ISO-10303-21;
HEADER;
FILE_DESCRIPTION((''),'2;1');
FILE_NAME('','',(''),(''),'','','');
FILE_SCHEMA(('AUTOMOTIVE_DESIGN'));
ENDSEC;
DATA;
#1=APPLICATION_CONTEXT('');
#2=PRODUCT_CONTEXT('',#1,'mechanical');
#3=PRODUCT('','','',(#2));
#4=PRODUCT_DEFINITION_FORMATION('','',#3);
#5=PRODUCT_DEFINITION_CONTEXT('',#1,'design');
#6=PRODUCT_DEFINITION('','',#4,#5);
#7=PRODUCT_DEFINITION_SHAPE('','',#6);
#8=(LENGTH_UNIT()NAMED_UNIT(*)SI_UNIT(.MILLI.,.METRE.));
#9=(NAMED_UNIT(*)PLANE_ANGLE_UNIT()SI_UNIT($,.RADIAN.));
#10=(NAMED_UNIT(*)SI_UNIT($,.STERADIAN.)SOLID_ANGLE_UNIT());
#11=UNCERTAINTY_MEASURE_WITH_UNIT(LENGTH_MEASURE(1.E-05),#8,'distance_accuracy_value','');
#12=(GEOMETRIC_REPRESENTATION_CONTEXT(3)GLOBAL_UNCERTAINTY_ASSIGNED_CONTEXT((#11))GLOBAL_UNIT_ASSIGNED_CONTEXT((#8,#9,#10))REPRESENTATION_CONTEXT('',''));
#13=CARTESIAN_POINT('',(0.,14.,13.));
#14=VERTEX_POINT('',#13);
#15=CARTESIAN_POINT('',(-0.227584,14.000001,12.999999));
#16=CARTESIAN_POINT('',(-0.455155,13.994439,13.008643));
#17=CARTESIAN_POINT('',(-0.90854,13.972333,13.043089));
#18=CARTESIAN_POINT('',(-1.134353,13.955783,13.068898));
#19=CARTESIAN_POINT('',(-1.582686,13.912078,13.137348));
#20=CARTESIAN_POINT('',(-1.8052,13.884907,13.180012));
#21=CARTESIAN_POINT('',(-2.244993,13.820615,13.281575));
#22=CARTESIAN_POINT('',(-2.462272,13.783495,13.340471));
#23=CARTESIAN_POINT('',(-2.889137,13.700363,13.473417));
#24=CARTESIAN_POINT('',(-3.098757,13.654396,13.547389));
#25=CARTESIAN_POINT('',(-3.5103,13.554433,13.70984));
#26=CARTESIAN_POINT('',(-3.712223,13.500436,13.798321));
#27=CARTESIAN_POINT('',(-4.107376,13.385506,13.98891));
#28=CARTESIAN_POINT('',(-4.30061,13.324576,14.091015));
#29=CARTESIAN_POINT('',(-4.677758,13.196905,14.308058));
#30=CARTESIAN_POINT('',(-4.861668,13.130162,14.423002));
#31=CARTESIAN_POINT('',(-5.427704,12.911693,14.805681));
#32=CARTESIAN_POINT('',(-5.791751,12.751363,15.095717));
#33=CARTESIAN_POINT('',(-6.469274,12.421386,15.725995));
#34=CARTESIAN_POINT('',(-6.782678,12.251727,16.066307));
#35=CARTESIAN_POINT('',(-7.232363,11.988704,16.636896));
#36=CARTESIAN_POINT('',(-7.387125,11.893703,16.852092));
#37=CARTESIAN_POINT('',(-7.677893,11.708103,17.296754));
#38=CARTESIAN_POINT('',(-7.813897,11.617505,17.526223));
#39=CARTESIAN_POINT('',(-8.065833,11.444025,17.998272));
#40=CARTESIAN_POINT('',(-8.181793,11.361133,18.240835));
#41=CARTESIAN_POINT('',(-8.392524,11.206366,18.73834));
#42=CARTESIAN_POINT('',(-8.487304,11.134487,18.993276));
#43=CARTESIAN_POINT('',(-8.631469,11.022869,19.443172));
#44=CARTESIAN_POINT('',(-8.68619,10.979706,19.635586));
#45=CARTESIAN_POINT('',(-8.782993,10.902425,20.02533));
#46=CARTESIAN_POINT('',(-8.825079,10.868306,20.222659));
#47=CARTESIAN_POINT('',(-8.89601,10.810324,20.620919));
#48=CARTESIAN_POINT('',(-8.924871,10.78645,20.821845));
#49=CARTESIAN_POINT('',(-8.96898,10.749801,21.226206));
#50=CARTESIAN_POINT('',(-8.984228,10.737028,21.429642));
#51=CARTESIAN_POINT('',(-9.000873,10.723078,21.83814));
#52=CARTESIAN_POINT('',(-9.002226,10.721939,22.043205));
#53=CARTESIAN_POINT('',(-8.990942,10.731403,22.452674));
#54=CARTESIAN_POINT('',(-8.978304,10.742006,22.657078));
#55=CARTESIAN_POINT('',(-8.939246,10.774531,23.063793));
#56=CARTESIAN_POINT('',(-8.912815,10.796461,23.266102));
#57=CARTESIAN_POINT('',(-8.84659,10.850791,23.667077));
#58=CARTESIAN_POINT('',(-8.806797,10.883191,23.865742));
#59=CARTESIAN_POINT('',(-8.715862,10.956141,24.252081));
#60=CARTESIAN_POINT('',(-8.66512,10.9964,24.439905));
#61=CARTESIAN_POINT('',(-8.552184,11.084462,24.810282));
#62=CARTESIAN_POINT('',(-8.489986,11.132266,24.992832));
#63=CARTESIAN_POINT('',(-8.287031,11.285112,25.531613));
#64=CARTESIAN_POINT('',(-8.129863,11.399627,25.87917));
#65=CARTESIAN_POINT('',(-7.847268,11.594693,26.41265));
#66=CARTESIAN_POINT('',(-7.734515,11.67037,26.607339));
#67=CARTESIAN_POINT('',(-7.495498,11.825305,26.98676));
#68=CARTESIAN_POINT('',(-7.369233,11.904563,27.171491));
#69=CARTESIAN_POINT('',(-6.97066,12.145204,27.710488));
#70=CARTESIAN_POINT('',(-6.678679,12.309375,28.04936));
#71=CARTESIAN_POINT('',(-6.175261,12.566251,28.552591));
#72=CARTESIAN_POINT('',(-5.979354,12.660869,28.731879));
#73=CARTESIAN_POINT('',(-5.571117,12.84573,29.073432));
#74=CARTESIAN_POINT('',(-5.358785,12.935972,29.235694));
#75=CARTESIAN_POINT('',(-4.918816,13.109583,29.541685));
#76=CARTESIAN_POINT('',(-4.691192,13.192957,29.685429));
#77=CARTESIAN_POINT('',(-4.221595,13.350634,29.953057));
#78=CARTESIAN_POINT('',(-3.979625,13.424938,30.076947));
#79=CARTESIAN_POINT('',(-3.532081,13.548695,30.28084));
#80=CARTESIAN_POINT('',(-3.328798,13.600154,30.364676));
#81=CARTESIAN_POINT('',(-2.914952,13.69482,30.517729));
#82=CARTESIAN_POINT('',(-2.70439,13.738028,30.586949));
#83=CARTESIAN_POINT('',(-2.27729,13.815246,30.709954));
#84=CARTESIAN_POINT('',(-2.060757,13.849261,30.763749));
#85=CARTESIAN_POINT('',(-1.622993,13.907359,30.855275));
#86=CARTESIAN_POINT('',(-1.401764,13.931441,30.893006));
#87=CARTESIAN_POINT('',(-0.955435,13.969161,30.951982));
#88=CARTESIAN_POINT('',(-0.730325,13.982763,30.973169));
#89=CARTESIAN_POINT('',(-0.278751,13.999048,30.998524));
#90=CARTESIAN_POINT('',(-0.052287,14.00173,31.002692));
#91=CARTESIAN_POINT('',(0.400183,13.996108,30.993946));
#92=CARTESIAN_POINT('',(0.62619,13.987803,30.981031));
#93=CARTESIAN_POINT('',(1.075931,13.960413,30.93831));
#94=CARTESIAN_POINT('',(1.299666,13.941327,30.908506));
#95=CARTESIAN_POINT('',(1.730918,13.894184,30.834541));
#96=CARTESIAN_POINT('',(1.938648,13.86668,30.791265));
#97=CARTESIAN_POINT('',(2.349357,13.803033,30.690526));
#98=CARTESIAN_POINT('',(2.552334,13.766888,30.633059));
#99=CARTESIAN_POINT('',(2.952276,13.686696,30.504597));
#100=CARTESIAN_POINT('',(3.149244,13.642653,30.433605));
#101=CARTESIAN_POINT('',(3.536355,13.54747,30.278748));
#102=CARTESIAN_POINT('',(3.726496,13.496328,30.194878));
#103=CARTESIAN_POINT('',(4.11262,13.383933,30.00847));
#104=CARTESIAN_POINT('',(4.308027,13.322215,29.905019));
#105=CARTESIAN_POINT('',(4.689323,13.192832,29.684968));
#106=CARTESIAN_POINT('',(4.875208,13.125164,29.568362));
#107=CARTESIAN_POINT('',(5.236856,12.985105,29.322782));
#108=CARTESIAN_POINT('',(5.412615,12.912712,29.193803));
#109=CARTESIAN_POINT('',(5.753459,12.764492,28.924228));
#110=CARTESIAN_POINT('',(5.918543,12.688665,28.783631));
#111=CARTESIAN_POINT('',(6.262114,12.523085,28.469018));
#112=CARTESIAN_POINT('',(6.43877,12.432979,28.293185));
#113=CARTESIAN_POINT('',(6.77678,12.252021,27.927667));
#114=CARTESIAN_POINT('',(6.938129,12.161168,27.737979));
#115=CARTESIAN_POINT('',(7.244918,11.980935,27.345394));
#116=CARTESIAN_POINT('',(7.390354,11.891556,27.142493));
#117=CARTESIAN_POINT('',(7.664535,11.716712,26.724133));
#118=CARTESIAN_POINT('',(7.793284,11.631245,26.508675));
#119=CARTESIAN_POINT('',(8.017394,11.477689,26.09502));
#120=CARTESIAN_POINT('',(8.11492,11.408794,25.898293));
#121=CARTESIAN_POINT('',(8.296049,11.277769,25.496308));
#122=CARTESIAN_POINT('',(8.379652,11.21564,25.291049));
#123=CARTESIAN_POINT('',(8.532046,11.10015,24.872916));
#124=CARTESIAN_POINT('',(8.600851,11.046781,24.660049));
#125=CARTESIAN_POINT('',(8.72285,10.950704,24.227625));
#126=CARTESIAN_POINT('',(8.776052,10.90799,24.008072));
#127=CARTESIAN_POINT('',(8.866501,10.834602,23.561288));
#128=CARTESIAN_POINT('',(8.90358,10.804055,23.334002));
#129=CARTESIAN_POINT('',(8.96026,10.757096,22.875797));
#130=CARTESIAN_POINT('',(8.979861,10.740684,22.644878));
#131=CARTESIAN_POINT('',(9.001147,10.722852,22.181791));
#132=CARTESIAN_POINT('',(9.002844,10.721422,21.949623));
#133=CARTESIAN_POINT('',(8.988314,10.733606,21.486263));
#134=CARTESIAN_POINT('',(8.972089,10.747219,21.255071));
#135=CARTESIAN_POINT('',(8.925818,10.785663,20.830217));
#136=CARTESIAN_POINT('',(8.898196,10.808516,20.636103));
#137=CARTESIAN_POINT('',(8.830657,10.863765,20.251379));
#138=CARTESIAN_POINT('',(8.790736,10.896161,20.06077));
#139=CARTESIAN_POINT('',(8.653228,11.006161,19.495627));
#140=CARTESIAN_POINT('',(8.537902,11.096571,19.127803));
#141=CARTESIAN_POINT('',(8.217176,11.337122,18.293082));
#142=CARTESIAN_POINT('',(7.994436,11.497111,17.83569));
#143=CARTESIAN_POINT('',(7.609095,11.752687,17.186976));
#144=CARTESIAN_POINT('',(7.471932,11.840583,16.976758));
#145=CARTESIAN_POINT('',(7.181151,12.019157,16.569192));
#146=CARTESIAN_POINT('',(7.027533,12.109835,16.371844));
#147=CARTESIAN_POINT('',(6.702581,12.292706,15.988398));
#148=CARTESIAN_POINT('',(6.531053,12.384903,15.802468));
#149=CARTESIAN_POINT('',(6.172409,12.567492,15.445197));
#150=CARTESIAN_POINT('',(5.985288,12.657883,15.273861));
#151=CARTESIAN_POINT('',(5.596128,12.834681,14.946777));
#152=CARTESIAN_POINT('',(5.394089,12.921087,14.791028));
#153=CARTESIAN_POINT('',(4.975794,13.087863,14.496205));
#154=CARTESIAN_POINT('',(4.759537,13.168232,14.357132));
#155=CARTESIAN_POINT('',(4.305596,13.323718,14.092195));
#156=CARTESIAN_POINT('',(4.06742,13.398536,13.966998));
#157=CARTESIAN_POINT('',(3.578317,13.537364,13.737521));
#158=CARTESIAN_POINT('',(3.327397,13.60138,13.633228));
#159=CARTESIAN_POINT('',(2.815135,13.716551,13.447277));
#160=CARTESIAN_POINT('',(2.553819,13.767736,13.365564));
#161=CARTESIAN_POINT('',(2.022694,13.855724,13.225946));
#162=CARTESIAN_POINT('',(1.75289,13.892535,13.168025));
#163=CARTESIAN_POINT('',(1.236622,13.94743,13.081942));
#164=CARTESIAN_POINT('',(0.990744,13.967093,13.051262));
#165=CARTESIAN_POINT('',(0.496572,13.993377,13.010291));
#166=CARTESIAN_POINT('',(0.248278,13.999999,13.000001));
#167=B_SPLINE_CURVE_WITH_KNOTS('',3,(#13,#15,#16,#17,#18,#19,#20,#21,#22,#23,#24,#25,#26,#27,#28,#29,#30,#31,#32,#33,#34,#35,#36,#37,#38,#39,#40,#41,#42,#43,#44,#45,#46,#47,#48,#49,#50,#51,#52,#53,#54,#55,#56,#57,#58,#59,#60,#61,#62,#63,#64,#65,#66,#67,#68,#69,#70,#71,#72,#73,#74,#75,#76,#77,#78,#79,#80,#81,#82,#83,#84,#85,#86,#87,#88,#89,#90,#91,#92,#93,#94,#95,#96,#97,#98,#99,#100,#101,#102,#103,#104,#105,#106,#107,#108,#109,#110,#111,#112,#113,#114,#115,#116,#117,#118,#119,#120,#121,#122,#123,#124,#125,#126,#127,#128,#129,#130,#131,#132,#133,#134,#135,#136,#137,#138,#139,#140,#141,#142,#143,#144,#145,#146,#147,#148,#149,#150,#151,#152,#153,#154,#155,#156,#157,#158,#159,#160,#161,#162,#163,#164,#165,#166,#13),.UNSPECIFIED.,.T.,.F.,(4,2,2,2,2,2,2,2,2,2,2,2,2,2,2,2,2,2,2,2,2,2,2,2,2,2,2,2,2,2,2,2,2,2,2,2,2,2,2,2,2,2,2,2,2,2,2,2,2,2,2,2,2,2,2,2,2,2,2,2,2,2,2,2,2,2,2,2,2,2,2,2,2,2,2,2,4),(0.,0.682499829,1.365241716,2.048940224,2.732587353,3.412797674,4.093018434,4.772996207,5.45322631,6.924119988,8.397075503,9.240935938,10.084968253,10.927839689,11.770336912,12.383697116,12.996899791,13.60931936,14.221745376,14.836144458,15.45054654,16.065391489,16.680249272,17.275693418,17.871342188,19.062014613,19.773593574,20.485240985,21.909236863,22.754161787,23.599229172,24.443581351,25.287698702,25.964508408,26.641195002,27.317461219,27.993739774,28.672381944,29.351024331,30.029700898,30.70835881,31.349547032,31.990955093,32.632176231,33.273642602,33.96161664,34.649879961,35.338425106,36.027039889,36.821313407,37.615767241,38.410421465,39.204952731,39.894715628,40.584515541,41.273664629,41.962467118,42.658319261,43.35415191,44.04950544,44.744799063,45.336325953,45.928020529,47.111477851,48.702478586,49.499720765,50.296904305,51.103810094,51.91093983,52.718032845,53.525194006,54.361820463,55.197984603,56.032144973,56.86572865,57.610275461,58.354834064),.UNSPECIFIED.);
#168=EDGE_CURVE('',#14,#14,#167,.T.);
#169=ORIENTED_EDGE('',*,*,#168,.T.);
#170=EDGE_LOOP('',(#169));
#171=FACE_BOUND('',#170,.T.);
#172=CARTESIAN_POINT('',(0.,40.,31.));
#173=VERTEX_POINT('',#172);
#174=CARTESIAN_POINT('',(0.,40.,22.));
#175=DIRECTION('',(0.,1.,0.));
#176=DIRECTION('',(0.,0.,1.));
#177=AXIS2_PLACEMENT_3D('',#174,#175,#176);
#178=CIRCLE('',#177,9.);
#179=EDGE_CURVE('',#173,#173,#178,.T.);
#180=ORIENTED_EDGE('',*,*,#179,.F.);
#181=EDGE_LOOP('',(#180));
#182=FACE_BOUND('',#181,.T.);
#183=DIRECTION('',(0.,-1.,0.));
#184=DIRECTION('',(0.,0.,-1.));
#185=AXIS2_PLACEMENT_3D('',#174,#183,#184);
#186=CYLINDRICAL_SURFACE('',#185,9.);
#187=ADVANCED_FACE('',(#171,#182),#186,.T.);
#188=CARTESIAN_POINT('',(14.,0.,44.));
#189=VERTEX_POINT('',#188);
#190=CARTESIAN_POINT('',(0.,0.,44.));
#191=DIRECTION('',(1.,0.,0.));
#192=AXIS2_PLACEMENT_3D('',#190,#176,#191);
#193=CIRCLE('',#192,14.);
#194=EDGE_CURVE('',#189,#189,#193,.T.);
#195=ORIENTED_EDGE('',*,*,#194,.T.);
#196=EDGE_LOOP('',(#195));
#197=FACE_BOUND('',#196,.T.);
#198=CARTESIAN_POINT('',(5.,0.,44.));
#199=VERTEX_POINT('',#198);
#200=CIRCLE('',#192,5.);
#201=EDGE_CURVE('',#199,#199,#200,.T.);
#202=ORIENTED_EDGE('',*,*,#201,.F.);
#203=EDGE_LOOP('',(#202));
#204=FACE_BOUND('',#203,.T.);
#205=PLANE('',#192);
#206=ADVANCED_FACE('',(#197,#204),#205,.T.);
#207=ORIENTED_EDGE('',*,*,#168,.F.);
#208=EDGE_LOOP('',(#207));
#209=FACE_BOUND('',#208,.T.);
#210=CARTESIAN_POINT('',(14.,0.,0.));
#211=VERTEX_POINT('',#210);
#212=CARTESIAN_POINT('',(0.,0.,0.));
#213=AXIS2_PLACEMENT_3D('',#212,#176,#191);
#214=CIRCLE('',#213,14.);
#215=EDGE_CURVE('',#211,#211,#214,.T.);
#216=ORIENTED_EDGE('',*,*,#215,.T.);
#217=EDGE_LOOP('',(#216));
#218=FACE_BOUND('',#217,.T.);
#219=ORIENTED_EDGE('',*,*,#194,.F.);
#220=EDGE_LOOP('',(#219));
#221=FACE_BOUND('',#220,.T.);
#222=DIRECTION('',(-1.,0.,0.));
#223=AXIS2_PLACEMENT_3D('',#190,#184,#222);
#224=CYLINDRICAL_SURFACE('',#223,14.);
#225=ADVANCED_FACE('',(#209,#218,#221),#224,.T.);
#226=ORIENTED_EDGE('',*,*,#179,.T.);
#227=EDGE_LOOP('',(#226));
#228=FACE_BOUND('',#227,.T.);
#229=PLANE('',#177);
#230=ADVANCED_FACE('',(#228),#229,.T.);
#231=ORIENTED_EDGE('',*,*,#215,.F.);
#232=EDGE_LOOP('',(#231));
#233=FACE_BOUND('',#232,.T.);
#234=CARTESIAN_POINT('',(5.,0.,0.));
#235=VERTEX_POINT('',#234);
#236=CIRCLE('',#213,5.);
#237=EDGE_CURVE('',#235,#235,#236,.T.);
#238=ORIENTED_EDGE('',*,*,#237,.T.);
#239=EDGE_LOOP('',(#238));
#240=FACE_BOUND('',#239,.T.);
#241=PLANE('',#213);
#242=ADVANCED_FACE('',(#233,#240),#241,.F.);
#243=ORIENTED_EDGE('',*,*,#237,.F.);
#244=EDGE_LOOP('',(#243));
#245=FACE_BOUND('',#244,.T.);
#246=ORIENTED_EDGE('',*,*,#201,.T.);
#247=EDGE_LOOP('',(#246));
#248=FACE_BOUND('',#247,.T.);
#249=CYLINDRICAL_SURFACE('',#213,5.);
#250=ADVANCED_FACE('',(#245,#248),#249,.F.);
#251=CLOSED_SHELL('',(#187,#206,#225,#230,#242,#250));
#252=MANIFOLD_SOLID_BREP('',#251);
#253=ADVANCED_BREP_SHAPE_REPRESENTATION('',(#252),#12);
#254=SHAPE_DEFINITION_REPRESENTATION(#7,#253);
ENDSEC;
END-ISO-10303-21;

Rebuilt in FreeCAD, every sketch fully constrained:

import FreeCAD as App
import Part
import Sketcher
from FreeCAD import Vector
Q = App.Units.Quantity

doc = App.newDocument("Part")
body = doc.addObject("PartDesign::Body", "Body")

# Sketch on XY plane
sketch1 = body.newObject("Sketcher::SketchObject", "Sketch")
sketch1.AttachmentSupport = (doc.getObject("XY_Plane"), [""])
sketch1.MapMode = "FlatFace"
sketch1.addGeometry(Part.Circle(Vector(0, 0, 0), Vector(0, 0, 1), 14), False)
sketch1.addConstraint([
    Sketcher.Constraint("Coincident", 0, 3, -1, 1),
    Sketcher.Constraint("Diameter", 0, Q("28 mm")),
])
pad1 = body.newObject("PartDesign::Pad", "Pad")
pad1.Profile = sketch1
pad1.Length = 44

# Sketch on XZ plane
sketch2 = body.newObject("Sketcher::SketchObject", "Sketch001")
sketch2.AttachmentSupport = (doc.getObject("XZ_Plane"), [""])
sketch2.MapMode = "FlatFace"
sketch2.addGeometry(Part.Circle(Vector(0, 22, 0), Vector(0, 0, 1), 9), False)
sketch2.addConstraint([
    Sketcher.Constraint("PointOnObject", 0, 3, -2),
    Sketcher.Constraint("Diameter", 0, Q("18 mm")),
    Sketcher.Constraint("DistanceY", -1, 1, 0, 3, Q("22 mm")),
])
pad2 = body.newObject("PartDesign::Pad", "Pad001")
pad2.Profile = sketch2
pad2.Length = 40
pad2.Reversed = True

# Sketch on XY plane
sketch3 = body.newObject("Sketcher::SketchObject", "Sketch002")
sketch3.AttachmentSupport = (doc.getObject("XY_Plane"), [""])
sketch3.MapMode = "FlatFace"
sketch3.AttachmentOffset = App.Placement(Vector(0, 0, 44), App.Rotation())
sketch3.addGeometry(Part.Circle(Vector(0, 0, 0), Vector(0, 0, 1), 5), False)
sketch3.addConstraint([
    Sketcher.Constraint("Coincident", 0, 3, -1, 1),
    Sketcher.Constraint("Diameter", 0, Q("10 mm")),
])
pocket1 = body.newObject("PartDesign::Pocket", "Pocket")
pocket1.Profile = sketch3
pocket1.Type = "ThroughAll"

doc.recompute()
